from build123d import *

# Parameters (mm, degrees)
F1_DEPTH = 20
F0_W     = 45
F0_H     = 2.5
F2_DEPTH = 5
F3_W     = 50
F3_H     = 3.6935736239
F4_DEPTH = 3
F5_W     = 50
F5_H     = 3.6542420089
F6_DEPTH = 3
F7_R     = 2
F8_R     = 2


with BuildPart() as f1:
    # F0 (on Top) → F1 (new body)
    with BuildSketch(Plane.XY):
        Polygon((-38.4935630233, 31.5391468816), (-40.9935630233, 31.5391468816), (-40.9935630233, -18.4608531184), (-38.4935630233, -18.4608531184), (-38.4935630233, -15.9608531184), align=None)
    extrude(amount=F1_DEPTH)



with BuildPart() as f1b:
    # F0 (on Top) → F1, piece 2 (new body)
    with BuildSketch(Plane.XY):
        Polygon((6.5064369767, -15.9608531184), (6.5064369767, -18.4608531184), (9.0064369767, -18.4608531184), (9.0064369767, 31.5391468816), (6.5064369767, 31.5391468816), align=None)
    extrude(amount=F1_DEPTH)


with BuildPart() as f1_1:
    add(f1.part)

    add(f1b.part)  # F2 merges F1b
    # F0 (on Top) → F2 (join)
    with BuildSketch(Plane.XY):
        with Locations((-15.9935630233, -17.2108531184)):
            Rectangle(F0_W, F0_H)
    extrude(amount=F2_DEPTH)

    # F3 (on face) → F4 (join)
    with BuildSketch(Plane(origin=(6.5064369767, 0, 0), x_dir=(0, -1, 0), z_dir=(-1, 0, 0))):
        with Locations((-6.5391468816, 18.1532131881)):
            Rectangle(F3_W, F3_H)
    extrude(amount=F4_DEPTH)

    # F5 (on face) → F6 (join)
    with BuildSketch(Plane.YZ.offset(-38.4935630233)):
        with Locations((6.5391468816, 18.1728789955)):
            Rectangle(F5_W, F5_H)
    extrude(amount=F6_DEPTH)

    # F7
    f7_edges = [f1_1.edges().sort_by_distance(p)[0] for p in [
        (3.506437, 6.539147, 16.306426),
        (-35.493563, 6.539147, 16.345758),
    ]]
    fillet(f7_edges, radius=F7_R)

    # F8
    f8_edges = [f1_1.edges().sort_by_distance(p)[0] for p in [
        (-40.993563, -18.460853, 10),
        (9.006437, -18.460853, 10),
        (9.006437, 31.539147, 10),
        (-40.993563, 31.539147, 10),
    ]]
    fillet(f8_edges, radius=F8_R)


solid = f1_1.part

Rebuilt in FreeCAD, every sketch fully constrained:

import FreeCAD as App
import Part
import Sketcher
from FreeCAD import Vector


def edges_at(feature, points):
    """Names of the edges that pass closest to the given points."""
    edges = feature.Shape.Edges
    near = lambda p: min(range(len(edges)), key=lambda i: edges[i].distToShape(Part.Vertex(*p))[0])
    return sorted({f"Edge{near(p) + 1}" for p in points})

doc = App.newDocument("Part")
body = doc.addObject("PartDesign::Body", "Body")

sketch1 = body.newObject("Sketcher::SketchObject", "Sketch")
sketch1.AttachmentSupport = (doc.getObject("XY_Plane"), [""])
sketch1.MapMode = "FlatFace"
sketch1.addGeometry(Part.LineSegment(Vector(-38.5, 31.5, 0), Vector(-41, 31.5, 0)), False)
sketch1.addGeometry(Part.LineSegment(Vector(-41, 31.5, 0), Vector(-41, -18.5, 0)), False)
sketch1.addGeometry(Part.LineSegment(Vector(-41, -18.5, 0), Vector(-38.5, -18.5, 0)), False)
sketch1.addGeometry(Part.LineSegment(Vector(-38.5, -18.5, 0), Vector(-38.5, 31.5, 0)), False)
sketch1.addConstraint(Sketcher.Constraint("Coincident", 0, 2, 1, 1))
sketch1.addConstraint(Sketcher.Constraint("Coincident", 1, 2, 2, 1))
sketch1.addConstraint(Sketcher.Constraint("Coincident", 2, 2, 3, 1))
sketch1.addConstraint(Sketcher.Constraint("Coincident", 3, 2, 0, 1))
sketch1.addConstraint(Sketcher.Constraint("Horizontal", 0))
sketch1.addConstraint(Sketcher.Constraint("Vertical", 1))
sketch1.addConstraint(Sketcher.Constraint("Horizontal", 2))
sketch1.addConstraint(Sketcher.Constraint("Vertical", 3))
sketch1.addConstraint(Sketcher.Constraint("DistanceY", 1, 2, 1, 1, 50.0))
sketch1.addConstraint(Sketcher.Constraint("DistanceX", 0, 2, 0, 1, 2.5))
sketch1.addConstraint(Sketcher.Constraint("DistanceX", 0, 2, -1, 1, 40.993563))
sketch1.addConstraint(Sketcher.Constraint("DistanceY", -1, 1, 0, 2, 31.539147))
pad1 = body.newObject("PartDesign::Pad", "Pad")
pad1.Profile = sketch1
pad1.Length = 20
body2 = doc.addObject("PartDesign::Body", "Body001")

sketch2 = body2.newObject("Sketcher::SketchObject", "Sketch001")
sketch2.AttachmentSupport = (doc.getObject("XY_Plane001"), [""])
sketch2.MapMode = "FlatFace"
sketch2.addGeometry(Part.LineSegment(Vector(6.5, -18.5, 0), Vector(9, -18.5, 0)), False)
sketch2.addGeometry(Part.LineSegment(Vector(9, -18.5, 0), Vector(9, 31.5, 0)), False)
sketch2.addGeometry(Part.LineSegment(Vector(9, 31.5, 0), Vector(6.5, 31.5, 0)), False)
sketch2.addGeometry(Part.LineSegment(Vector(6.5, 31.5, 0), Vector(6.5, -18.5, 0)), False)
sketch2.addConstraint(Sketcher.Constraint("Coincident", 0, 2, 1, 1))
sketch2.addConstraint(Sketcher.Constraint("Coincident", 1, 2, 2, 1))
sketch2.addConstraint(Sketcher.Constraint("Coincident", 2, 2, 3, 1))
sketch2.addConstraint(Sketcher.Constraint("Coincident", 3, 2, 0, 1))
sketch2.addConstraint(Sketcher.Constraint("Horizontal", 0))
sketch2.addConstraint(Sketcher.Constraint("Vertical", 1))
sketch2.addConstraint(Sketcher.Constraint("Horizontal", 2))
sketch2.addConstraint(Sketcher.Constraint("Vertical", 3))
sketch2.addConstraint(Sketcher.Constraint("DistanceY", 1, 1, 1, 2, 50.0))
sketch2.addConstraint(Sketcher.Constraint("DistanceX", 0, 1, 0, 2, 2.5))
sketch2.addConstraint(Sketcher.Constraint("DistanceX", -1, 1, 0, 2, 9.006437))
sketch2.addConstraint(Sketcher.Constraint("DistanceY", 0, 2, -1, 1, 18.460853))
pad2 = body2.newObject("PartDesign::Pad", "Pad001")
pad2.Profile = sketch2
pad2.Length = 20
body.AllowCompound = True
doc.recompute()

boolean = body.newObject("PartDesign::Boolean", "Boolean")
boolean.Type = "Fuse"
boolean.addObjects([body2])

sketch3 = body.newObject("Sketcher::SketchObject", "Sketch002")
sketch3.AttachmentSupport = (doc.getObject("XY_Plane"), [""])
sketch3.MapMode = "FlatFace"
sketch3.addGeometry(Part.LineSegment(Vector(-38.5, -16, 0), Vector(-38.5, -18.5, 0)), False)
sketch3.addGeometry(Part.LineSegment(Vector(-38.5, -18.5, 0), Vector(6.5, -18.5, 0)), False)
sketch3.addGeometry(Part.LineSegment(Vector(6.5, -18.5, 0), Vector(6.5, -16, 0)), False)
sketch3.addGeometry(Part.LineSegment(Vector(6.5, -16, 0), Vector(-38.5, -16, 0)), False)
sketch3.addConstraint(Sketcher.Constraint("Coincident", 0, 2, 1, 1))
sketch3.addConstraint(Sketcher.Constraint("Coincident", 1, 2, 2, 1))
sketch3.addConstraint(Sketcher.Constraint("Coincident", 2, 2, 3, 1))
sketch3.addConstraint(Sketcher.Constraint("Coincident", 3, 2, 0, 1))
sketch3.addConstraint(Sketcher.Constraint("Vertical", 0))
sketch3.addConstraint(Sketcher.Constraint("Horizontal", 1))
sketch3.addConstraint(Sketcher.Constraint("Vertical", 2))
sketch3.addConstraint(Sketcher.Constraint("Horizontal", 3))
sketch3.addConstraint(Sketcher.Constraint("DistanceX", 1, 1, 1, 2, 45.0))
sketch3.addConstraint(Sketcher.Constraint("DistanceY", 0, 2, 0, 1, 2.5))
sketch3.addConstraint(Sketcher.Constraint("DistanceX", 0, 2, -1, 1, 38.493563))
sketch3.addConstraint(Sketcher.Constraint("DistanceY", 0, 2, -1, 1, 18.460853))
pad3 = body.newObject("PartDesign::Pad", "Pad002")
pad3.Profile = sketch3
pad3.Length = 5

sketch4 = body.newObject("Sketcher::SketchObject", "Sketch003")
sketch4.AttachmentSupport = (doc.getObject("YZ_Plane"), [""])
sketch4.MapMode = "FlatFace"
sketch4.AttachmentOffset = App.Placement(Vector(0, 0, 6.506437), App.Rotation())
sketch4.addGeometry(Part.LineSegment(Vector(31.5, 20, 0), Vector(31.5, 16.3, 0)), False)
sketch4.addGeometry(Part.LineSegment(Vector(31.5, 16.3, 0), Vector(-18.5, 16.3, 0)), False)
sketch4.addGeometry(Part.LineSegment(Vector(-18.5, 16.3, 0), Vector(-18.5, 20, 0)), False)
sketch4.addGeometry(Part.LineSegment(Vector(-18.5, 20, 0), Vector(31.5, 20, 0)), False)
sketch4.addConstraint(Sketcher.Constraint("Coincident", 0, 2, 1, 1))
sketch4.addConstraint(Sketcher.Constraint("Coincident", 1, 2, 2, 1))
sketch4.addConstraint(Sketcher.Constraint("Coincident", 2, 2, 3, 1))
sketch4.addConstraint(Sketcher.Constraint("Coincident", 3, 2, 0, 1))
sketch4.addConstraint(Sketcher.Constraint("Vertical", 0))
sketch4.addConstraint(Sketcher.Constraint("Horizontal", 1))
sketch4.addConstraint(Sketcher.Constraint("Vertical", 2))
sketch4.addConstraint(Sketcher.Constraint("Horizontal", 3))
sketch4.addConstraint(Sketcher.Constraint("DistanceX", 1, 2, 1, 1, 50.0))
sketch4.addConstraint(Sketcher.Constraint("DistanceY", -1, 1, 2, 2, 20.0))
sketch4.addConstraint(Sketcher.Constraint("DistanceY", 0, 2, 0, 1, 3.693574))
sketch4.addConstraint(Sketcher.Constraint("DistanceX", -1, 1, 0, 2, 31.539147))
pad4 = body.newObject("PartDesign::Pad", "Pad003")
pad4.Profile = sketch4
pad4.Length = 3
pad4.Reversed = True

sketch5 = body.newObject("Sketcher::SketchObject", "Sketch004")
sketch5.AttachmentSupport = (doc.getObject("YZ_Plane"), [""])
sketch5.MapMode = "FlatFace"
sketch5.AttachmentOffset = App.Placement(Vector(0, 0, -38.493563), App.Rotation())
sketch5.addGeometry(Part.LineSegment(Vector(-18.5, 20, 0), Vector(-18.5, 16.3, 0)), False)
sketch5.addGeometry(Part.LineSegment(Vector(-18.5, 16.3, 0), Vector(31.5, 16.3, 0)), False)
sketch5.addGeometry(Part.LineSegment(Vector(31.5, 16.3, 0), Vector(31.5, 20, 0)), False)
sketch5.addGeometry(Part.LineSegment(Vector(31.5, 20, 0), Vector(-18.5, 20, 0)), False)
sketch5.addConstraint(Sketcher.Constraint("Coincident", 0, 2, 1, 1))
sketch5.addConstraint(Sketcher.Constraint("Coincident", 1, 2, 2, 1))
sketch5.addConstraint(Sketcher.Constraint("Coincident", 2, 2, 3, 1))
sketch5.addConstraint(Sketcher.Constraint("Coincident", 3, 2, 0, 1))
sketch5.addConstraint(Sketcher.Constraint("Vertical", 0))
sketch5.addConstraint(Sketcher.Constraint("Horizontal", 1))
sketch5.addConstraint(Sketcher.Constraint("Vertical", 2))
sketch5.addConstraint(Sketcher.Constraint("Horizontal", 3))
sketch5.addConstraint(Sketcher.Constraint("DistanceX", 1, 1, 1, 2, 50.0))
sketch5.addConstraint(Sketcher.Constraint("DistanceY", -1, 1, 2, 2, 20.0))
sketch5.addConstraint(Sketcher.Constraint("DistanceY", 0, 2, 0, 1, 3.654242))
sketch5.addConstraint(Sketcher.Constraint("DistanceX", 0, 2, -1, 1, 18.460853))
pad5 = body.newObject("PartDesign::Pad", "Pad004")
pad5.Profile = sketch5
pad5.Length = 3
doc.recompute()

fillet = body.newObject("PartDesign::Fillet", "Fillet")
fillet.Base = (pad5, edges_at(pad5, [(3.506, 6.539, 16.306), (-35.494, 6.539, 16.346)]))
fillet.Radius = 2
doc.recompute()

fillet2 = body.newObject("PartDesign::Fillet", "Fillet001")
fillet2.Base = (fillet, edges_at(fillet, [
    (-40.994, -18.461, 10),
    (9.006, -18.461, 10),
    (9.006, 31.539, 10),
    (-40.994, 31.539, 10),
]))
fillet2.Radius = 2

doc.recompute()
